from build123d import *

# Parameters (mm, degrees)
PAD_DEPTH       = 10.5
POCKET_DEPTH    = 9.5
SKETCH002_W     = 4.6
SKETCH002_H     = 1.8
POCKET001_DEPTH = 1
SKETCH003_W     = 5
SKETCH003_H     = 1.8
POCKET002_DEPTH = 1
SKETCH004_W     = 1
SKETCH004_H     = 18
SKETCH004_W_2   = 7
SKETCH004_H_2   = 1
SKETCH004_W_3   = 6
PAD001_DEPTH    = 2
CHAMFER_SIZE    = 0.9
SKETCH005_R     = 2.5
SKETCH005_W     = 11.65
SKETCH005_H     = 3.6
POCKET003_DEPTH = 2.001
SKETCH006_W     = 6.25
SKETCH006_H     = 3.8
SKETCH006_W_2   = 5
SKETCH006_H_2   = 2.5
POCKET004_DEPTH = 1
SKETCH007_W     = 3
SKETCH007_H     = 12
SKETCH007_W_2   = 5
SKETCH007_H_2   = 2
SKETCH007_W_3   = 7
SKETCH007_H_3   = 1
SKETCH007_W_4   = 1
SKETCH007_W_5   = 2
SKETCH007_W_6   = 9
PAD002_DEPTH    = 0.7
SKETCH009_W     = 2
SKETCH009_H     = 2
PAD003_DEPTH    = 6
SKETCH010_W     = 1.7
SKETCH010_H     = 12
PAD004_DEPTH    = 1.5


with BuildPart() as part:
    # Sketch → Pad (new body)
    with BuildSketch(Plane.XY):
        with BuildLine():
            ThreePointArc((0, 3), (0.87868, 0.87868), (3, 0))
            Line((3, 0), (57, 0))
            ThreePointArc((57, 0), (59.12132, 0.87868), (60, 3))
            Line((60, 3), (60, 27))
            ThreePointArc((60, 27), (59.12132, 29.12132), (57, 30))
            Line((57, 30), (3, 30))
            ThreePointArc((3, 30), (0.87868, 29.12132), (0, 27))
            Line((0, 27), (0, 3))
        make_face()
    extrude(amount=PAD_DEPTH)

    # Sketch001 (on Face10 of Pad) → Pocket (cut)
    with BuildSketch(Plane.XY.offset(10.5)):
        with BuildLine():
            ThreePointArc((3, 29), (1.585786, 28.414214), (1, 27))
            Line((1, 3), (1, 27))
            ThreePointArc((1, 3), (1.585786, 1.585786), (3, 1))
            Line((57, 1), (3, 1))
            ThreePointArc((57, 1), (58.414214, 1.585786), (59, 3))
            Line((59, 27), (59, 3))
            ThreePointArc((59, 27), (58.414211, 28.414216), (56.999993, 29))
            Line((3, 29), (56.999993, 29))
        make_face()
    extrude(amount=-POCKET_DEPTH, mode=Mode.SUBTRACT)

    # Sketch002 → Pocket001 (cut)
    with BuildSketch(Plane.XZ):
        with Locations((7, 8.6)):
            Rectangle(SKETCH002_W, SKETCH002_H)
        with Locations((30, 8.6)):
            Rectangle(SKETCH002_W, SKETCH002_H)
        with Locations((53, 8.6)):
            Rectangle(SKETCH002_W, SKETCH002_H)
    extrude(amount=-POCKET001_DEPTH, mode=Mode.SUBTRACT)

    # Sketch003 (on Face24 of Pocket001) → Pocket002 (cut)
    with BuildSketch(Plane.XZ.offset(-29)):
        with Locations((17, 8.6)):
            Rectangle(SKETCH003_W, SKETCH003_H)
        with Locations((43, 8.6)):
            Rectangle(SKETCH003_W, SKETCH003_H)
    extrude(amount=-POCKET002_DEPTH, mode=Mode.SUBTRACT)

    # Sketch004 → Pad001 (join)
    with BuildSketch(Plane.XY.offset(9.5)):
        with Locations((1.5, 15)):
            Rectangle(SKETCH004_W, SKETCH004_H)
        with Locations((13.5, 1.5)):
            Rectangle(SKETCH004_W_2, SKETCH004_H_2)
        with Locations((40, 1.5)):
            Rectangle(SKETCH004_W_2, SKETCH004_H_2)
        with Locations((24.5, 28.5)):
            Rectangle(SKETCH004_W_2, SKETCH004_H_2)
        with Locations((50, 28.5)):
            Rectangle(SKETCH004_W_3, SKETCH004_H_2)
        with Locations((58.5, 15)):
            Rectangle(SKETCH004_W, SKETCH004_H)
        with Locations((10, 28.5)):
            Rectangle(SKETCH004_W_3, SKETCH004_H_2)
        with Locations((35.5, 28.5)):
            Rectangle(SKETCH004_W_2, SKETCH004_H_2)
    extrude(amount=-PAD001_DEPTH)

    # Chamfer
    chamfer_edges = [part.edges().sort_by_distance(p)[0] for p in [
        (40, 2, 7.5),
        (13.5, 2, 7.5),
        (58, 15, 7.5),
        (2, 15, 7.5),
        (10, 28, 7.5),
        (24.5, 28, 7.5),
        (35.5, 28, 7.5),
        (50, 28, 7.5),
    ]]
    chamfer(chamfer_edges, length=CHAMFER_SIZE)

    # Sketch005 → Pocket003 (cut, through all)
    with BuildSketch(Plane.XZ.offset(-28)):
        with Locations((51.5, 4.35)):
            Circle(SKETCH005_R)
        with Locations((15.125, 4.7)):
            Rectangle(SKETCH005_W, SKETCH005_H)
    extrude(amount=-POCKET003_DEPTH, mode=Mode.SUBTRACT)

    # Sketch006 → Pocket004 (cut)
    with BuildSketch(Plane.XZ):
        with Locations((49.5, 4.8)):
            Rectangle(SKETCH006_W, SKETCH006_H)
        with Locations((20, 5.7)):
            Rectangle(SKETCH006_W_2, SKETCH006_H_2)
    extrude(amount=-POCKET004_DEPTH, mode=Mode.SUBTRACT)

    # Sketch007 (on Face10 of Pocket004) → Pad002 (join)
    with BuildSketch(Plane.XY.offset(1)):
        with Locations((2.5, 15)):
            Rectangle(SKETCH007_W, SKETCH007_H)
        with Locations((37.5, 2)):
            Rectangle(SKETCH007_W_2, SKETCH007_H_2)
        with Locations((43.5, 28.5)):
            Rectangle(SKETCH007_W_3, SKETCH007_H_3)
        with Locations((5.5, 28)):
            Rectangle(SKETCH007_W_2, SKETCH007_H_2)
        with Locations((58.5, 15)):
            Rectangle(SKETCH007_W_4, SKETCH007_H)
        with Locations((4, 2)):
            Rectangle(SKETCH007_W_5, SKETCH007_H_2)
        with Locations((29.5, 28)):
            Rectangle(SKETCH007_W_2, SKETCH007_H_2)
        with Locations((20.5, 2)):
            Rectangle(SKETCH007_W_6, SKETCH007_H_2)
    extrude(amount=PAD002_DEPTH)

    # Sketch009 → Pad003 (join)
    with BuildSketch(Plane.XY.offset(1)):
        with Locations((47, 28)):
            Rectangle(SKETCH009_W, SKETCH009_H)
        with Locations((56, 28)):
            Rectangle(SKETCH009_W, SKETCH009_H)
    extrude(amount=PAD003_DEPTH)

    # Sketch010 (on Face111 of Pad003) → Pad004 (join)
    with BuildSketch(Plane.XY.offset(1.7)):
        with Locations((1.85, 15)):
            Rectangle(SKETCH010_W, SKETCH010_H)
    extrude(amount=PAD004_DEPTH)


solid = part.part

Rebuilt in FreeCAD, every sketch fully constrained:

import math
import FreeCAD as App
import Part
import Sketcher
from FreeCAD import Vector
Q = App.Units.Quantity


def edges_at(feature, points):
    """Names of the edges that pass closest to the given points."""
    edges = feature.Shape.Edges
    near = lambda p: min(range(len(edges)), key=lambda i: edges[i].distToShape(Part.Vertex(*p))[0])
    return sorted({f"Edge{near(p) + 1}" for p in points})

doc = App.newDocument("Part")
body = doc.addObject("PartDesign::Body", "Body")

# Sketch on XY plane
sketch1 = body.newObject("Sketcher::SketchObject", "Sketch")
sketch1.AttachmentSupport = (doc.getObject("XY_Plane"), [""])
sketch1.MapMode = "FlatFace"
sketch1.addGeometry([
    Part.ArcOfCircle(Part.Circle(Vector(3.000001, 3.000001, 0), Vector(0, 0, 1), 3.000001), math.radians(-179.999978), math.radians(-90.000022)),  # 0
    Part.LineSegment(Vector(3, 0, 0), Vector(57, 0, 0)),  # 1
    Part.ArcOfCircle(Part.Circle(Vector(56.999999, 3.000001, 0), Vector(0, 0, 1), 3.000001), math.radians(-89.999978), math.radians(-0.000022)),  # 2
    Part.LineSegment(Vector(60, 3, 0), Vector(60, 27, 0)),  # 3
    Part.ArcOfCircle(Part.Circle(Vector(56.999999, 26.999999, 0), Vector(0, 0, 1), 3.000001), math.radians(0.000022), math.radians(89.999978)),  # 4
    Part.LineSegment(Vector(57, 30, 0), Vector(3, 30, 0)),  # 5
    Part.ArcOfCircle(Part.Circle(Vector(3.000001, 26.999999, 0), Vector(0, 0, 1), 3.000001), math.radians(90.000022), math.radians(179.999978)),  # 6
    Part.LineSegment(Vector(0, 27, 0), Vector(0, 3, 0)),  # 7
], False)
sketch1.addConstraint([
    Sketcher.Constraint("Tangent", 0, 2, 1, 1),
    Sketcher.Constraint("Tangent", 1, 2, 2, 1),
    Sketcher.Constraint("Tangent", 2, 2, 3, 1),
    Sketcher.Constraint("Tangent", 3, 2, 4, 1),
    Sketcher.Constraint("Tangent", 4, 2, 5, 1),
    Sketcher.Constraint("Tangent", 5, 2, 6, 1),
    Sketcher.Constraint("Tangent", 6, 2, 7, 1),
    Sketcher.Constraint("Tangent", 7, 2, 0, 1),
    Sketcher.Constraint("Horizontal", 1),
    Sketcher.Constraint("Vertical", 3),
    Sketcher.Constraint("Horizontal", 5),
    Sketcher.Constraint("Vertical", 7),
    Sketcher.Constraint("Equal", 0, 2),
    Sketcher.Constraint("Equal", 2, 4),
    Sketcher.Constraint("Equal", 4, 6),
    Sketcher.Constraint("PointOnObject", 0, 2, -1),
    Sketcher.Constraint("PointOnObject", 6, 2, -2),
    Sketcher.Constraint("Radius", 0, Q("3.000001 mm")),
    Sketcher.Constraint("DistanceX", 1, 1, 1, 2, Q("54 mm")),
    Sketcher.Constraint("DistanceY", 3, 1, 3, 2, Q("24 mm")),
])
pad1 = body.newObject("PartDesign::Pad", "Pad")
pad1.Profile = sketch1
pad1.Length = 10.5

# Sketch on XY plane
sketch2 = body.newObject("Sketcher::SketchObject", "Sketch001")
sketch2.AttachmentSupport = (doc.getObject("XY_Plane"), [""])
sketch2.MapMode = "FlatFace"
sketch2.AttachmentOffset = App.Placement(Vector(0, 0, 10.5), App.Rotation())
sketch2.addGeometry([
    Part.ArcOfCircle(Part.Circle(Vector(2.999999, 27.000001, 0), Vector(0, 0, 1), 1.999999), math.radians(89.999957), math.radians(180.000043)),  # 0
    Part.LineSegment(Vector(1, 27, 0), Vector(1, 3, 0)),  # 1
    Part.ArcOfCircle(Part.Circle(Vector(2.999999, 2.999999, 0), Vector(0, 0, 1), 1.999999), math.radians(179.999957), math.radians(270.000043)),  # 2
    Part.LineSegment(Vector(3, 1, 0), Vector(57, 1, 0)),  # 3
    Part.ArcOfCircle(Part.Circle(Vector(57.000001, 2.999999, 0), Vector(0, 0, 1), 1.999999), math.radians(-90.000043), math.radians(0.000043)),  # 4
    Part.LineSegment(Vector(59, 3, 0), Vector(59, 27, 0)),  # 5
    Part.ArcOfCircle(Part.Circle(Vector(57, 27, 0), Vector(0, 0, 1), 2), math.radians(0.000006), math.radians(90.000194)),  # 6
    Part.LineSegment(Vector(56.999993, 29, 0), Vector(3, 29, 0)),  # 7
], False)
sketch2.addConstraint([
    Sketcher.Constraint("Tangent", 0, 2, 1, 1),
    Sketcher.Constraint("Tangent", 1, 2, 2, 1),
    Sketcher.Constraint("Tangent", 2, 2, 3, 1),
    Sketcher.Constraint("Tangent", 3, 2, 4, 1),
    Sketcher.Constraint("Tangent", 4, 2, 5, 1),
    Sketcher.Constraint("Tangent", 5, 2, 6, 1),
    Sketcher.Constraint("Coincident", 6, 2, 7, 1),
    Sketcher.Constraint("Tangent", 7, 2, 0, 1),
    Sketcher.Constraint("Vertical", 1),
    Sketcher.Constraint("Horizontal", 3),
    Sketcher.Constraint("Vertical", 5),
    Sketcher.Constraint("Horizontal", 7),
    Sketcher.Constraint("Equal", 0, 2),
    Sketcher.Constraint("Equal", 2, 4),
    Sketcher.Constraint("Equal", 4, 6),
    Sketcher.Constraint("Radius", 0, Q("1.999999 mm")),
    Sketcher.Constraint("DistanceX", 3, 1, 3, 2, Q("54 mm")),
    Sketcher.Constraint("DistanceY", 1, 2, 1, 1, Q("24 mm")),
    Sketcher.Constraint("DistanceX", -1, 1, 0, 3, Q("2.999999 mm")),
    Sketcher.Constraint("DistanceY", -1, 1, 0, 3, Q("27.000001 mm")),
    Sketcher.Constraint("DistanceX", 7, 2, 7, 1, Q("53.999993 mm")),
])
pocket1 = body.newObject("PartDesign::Pocket", "Pocket")
pocket1.Profile = sketch2
pocket1.Length = 9.5

# Sketch on XZ plane
sketch3 = body.newObject("Sketcher::SketchObject", "Sketch002")
sketch3.AttachmentSupport = (doc.getObject("XZ_Plane"), [""])
sketch3.MapMode = "FlatFace"
sketch3.addGeometry([
    Part.LineSegment(Vector(4.7, 9.5, 0), Vector(4.7, 7.7, 0)),  # 0
    Part.LineSegment(Vector(4.7, 7.7, 0), Vector(9.3, 7.7, 0)),  # 1
    Part.LineSegment(Vector(9.3, 7.7, 0), Vector(9.3, 9.5, 0)),  # 2
    Part.LineSegment(Vector(9.3, 9.5, 0), Vector(4.7, 9.5, 0)),  # 3
    Part.LineSegment(Vector(27.7, 9.5, 0), Vector(27.7, 7.7, 0)),  # 4
    Part.LineSegment(Vector(27.7, 7.7, 0), Vector(32.3, 7.7, 0)),  # 5
    Part.LineSegment(Vector(32.3, 7.7, 0), Vector(32.3, 9.5, 0)),  # 6
    Part.LineSegment(Vector(32.3, 9.5, 0), Vector(27.7, 9.5, 0)),  # 7
    Part.LineSegment(Vector(50.7, 9.5, 0), Vector(50.7, 7.7, 0)),  # 8
    Part.LineSegment(Vector(50.7, 7.7, 0), Vector(55.3, 7.7, 0)),  # 9
    Part.LineSegment(Vector(55.3, 7.7, 0), Vector(55.3, 9.5, 0)),  # 10
    Part.LineSegment(Vector(55.3, 9.5, 0), Vector(50.7, 9.5, 0)),  # 11
], False)
sketch3.addConstraint([
    Sketcher.Constraint("Coincident", 0, 2, 1, 1),
    Sketcher.Constraint("Coincident", 1, 2, 2, 1),
    Sketcher.Constraint("Coincident", 2, 2, 3, 1),
    Sketcher.Constraint("Coincident", 3, 2, 0, 1),
    Sketcher.Constraint("Coincident", 4, 2, 5, 1),
    Sketcher.Constraint("Coincident", 5, 2, 6, 1),
    Sketcher.Constraint("Coincident", 6, 2, 7, 1),
    Sketcher.Constraint("Coincident", 7, 2, 4, 1),
    Sketcher.Constraint("Coincident", 8, 2, 9, 1),
    Sketcher.Constraint("Coincident", 9, 2, 10, 1),
    Sketcher.Constraint("Coincident", 10, 2, 11, 1),
    Sketcher.Constraint("Coincident", 11, 2, 8, 1),
    Sketcher.Constraint("Vertical", 0),
    Sketcher.Constraint("Horizontal", 1),
    Sketcher.Constraint("Vertical", 2),
    Sketcher.Constraint("Horizontal", 3),
    Sketcher.Constraint("Vertical", 4),
    Sketcher.Constraint("Horizontal", 5),
    Sketcher.Constraint("Vertical", 6),
    Sketcher.Constraint("Horizontal", 7),
    Sketcher.Constraint("Vertical", 8),
    Sketcher.Constraint("Horizontal", 9),
    Sketcher.Constraint("Vertical", 10),
    Sketcher.Constraint("Horizontal", 11),
    Sketcher.Constraint("Horizontal", 1, 2, 4, 2),
    Sketcher.Constraint("Horizontal", 3, 2, 6, 2),
    Sketcher.Constraint("Horizontal", 5, 2, 8, 2),
    Sketcher.Constraint("Horizontal", 7, 2, 10, 2),
    Sketcher.Constraint("Equal", 3, 5),
    Sketcher.Constraint("Equal", 7, 9),
    Sketcher.Constraint("DistanceX", 1, 1, 1, 2, Q("4.6 mm")),
    Sketcher.Constraint("DistanceY", 0, 2, 0, 1, Q("1.8 mm")),
    Sketcher.Constraint("DistanceX", 0, 2, 4, 2, Q("23 mm")),
    Sketcher.Constraint("DistanceX", 4, 2, 8, 2, Q("23 mm")),
    Sketcher.Constraint("DistanceX", -1, 1, 0, 2, Q("4.7 mm")),
    Sketcher.Constraint("DistanceY", -1, 1, 0, 2, Q("7.7 mm")),
])
pocket2 = body.newObject("PartDesign::Pocket", "Pocket001")
pocket2.Profile = sketch3
pocket2.Length = 1

# Sketch on XZ plane
sketch4 = body.newObject("Sketcher::SketchObject", "Sketch003")
sketch4.AttachmentSupport = (doc.getObject("XZ_Plane"), [""])
sketch4.MapMode = "FlatFace"
sketch4.AttachmentOffset = App.Placement(Vector(0, 0, -29), App.Rotation())
sketch4.addGeometry([
    Part.LineSegment(Vector(14.5, 9.5, 0), Vector(14.5, 7.7, 0)),  # 0
    Part.LineSegment(Vector(14.5, 7.7, 0), Vector(19.5, 7.7, 0)),  # 1
    Part.LineSegment(Vector(19.5, 7.7, 0), Vector(19.5, 9.5, 0)),  # 2
    Part.LineSegment(Vector(19.5, 9.5, 0), Vector(14.5, 9.5, 0)),  # 3
    Part.LineSegment(Vector(40.5, 9.5, 0), Vector(40.5, 7.7, 0)),  # 4
    Part.LineSegment(Vector(40.5, 7.7, 0), Vector(45.5, 7.7, 0)),  # 5
    Part.LineSegment(Vector(45.5, 7.7, 0), Vector(45.5, 9.5, 0)),  # 6
    Part.LineSegment(Vector(45.5, 9.5, 0), Vector(40.5, 9.5, 0)),  # 7
], False)
sketch4.addConstraint([
    Sketcher.Constraint("Coincident", 0, 2, 1, 1),
    Sketcher.Constraint("Coincident", 1, 2, 2, 1),
    Sketcher.Constraint("Coincident", 2, 2, 3, 1),
    Sketcher.Constraint("Coincident", 3, 2, 0, 1),
    Sketcher.Constraint("Coincident", 4, 2, 5, 1),
    Sketcher.Constraint("Coincident", 5, 2, 6, 1),
    Sketcher.Constraint("Coincident", 6, 2, 7, 1),
    Sketcher.Constraint("Coincident", 7, 2, 4, 1),
    Sketcher.Constraint("Vertical", 0),
    Sketcher.Constraint("Horizontal", 1),
    Sketcher.Constraint("Vertical", 2),
    Sketcher.Constraint("Horizontal", 3),
    Sketcher.Constraint("Vertical", 4),
    Sketcher.Constraint("Horizontal", 5),
    Sketcher.Constraint("Vertical", 6),
    Sketcher.Constraint("Horizontal", 7),
    Sketcher.Constraint("Horizontal", 1, 2, 4, 2),
    Sketcher.Constraint("Horizontal", 3, 2, 6, 2),
    Sketcher.Constraint("Equal", 3, 5),
    Sketcher.Constraint("DistanceX", 1, 1, 1, 2, Q("5 mm")),
    Sketcher.Constraint("DistanceY", 0, 2, 0, 1, Q("1.8 mm")),
    Sketcher.Constraint("DistanceX", 1, 2, 4, 2, Q("21 mm")),
    Sketcher.Constraint("DistanceX", -1, 1, 0, 2, Q("14.5 mm")),
    Sketcher.Constraint("DistanceY", -1, 1, 0, 2, Q("7.7 mm")),
])
pocket3 = body.newObject("PartDesign::Pocket", "Pocket002")
pocket3.Profile = sketch4
pocket3.Length = 1

# Sketch on XY plane
sketch5 = body.newObject("Sketcher::SketchObject", "Sketch004")
sketch5.AttachmentSupport = (doc.getObject("XY_Plane"), [""])
sketch5.MapMode = "FlatFace"
sketch5.AttachmentOffset = App.Placement(Vector(0, 0, 9.5), App.Rotation())
sketch5.addGeometry([
    Part.LineSegment(Vector(1, 24, 0), Vector(1, 6, 0)),  # 0
    Part.LineSegment(Vector(1, 6, 0), Vector(2, 6, 0)),  # 1
    Part.LineSegment(Vector(2, 6, 0), Vector(2, 24, 0)),  # 2
    Part.LineSegment(Vector(2, 24, 0), Vector(1, 24, 0)),  # 3
    Part.LineSegment(Vector(10, 2, 0), Vector(10, 1, 0)),  # 4
    Part.LineSegment(Vector(10, 1, 0), Vector(17, 1, 0)),  # 5
    Part.LineSegment(Vector(17, 1, 0), Vector(17, 2, 0)),  # 6
    Part.LineSegment(Vector(17, 2, 0), Vector(10, 2, 0)),  # 7
    Part.LineSegment(Vector(36.5, 2, 0), Vector(36.5, 1, 0)),  # 8
    Part.LineSegment(Vector(36.5, 1, 0), Vector(43.5, 1, 0)),  # 9
    Part.LineSegment(Vector(43.5, 1, 0), Vector(43.5, 2, 0)),  # 10
    Part.LineSegment(Vector(43.5, 2, 0), Vector(36.5, 2, 0)),  # 11
    Part.LineSegment(Vector(21, 29, 0), Vector(21, 28, 0)),  # 12
    Part.LineSegment(Vector(21, 28, 0), Vector(28, 28, 0)),  # 13
    Part.LineSegment(Vector(28, 28, 0), Vector(28, 29, 0)),  # 14
    Part.LineSegment(Vector(28, 29, 0), Vector(21, 29, 0)),  # 15
    Part.LineSegment(Vector(47, 29, 0), Vector(47, 28, 0)),  # 16
    Part.LineSegment(Vector(47, 28, 0), Vector(53, 28, 0)),  # 17
    Part.LineSegment(Vector(53, 28, 0), Vector(53, 29, 0)),  # 18
    Part.LineSegment(Vector(53, 29, 0), Vector(47, 29, 0)),  # 19
    Part.LineSegment(Vector(58, 24, 0), Vector(58, 6, 0)),  # 20
    Part.LineSegment(Vector(58, 6, 0), Vector(59, 6, 0)),  # 21
    Part.LineSegment(Vector(59, 6, 0), Vector(59, 24, 0)),  # 22
    Part.LineSegment(Vector(59, 24, 0), Vector(58, 24, 0)),  # 23
    Part.LineSegment(Vector(7, 29, 0), Vector(7, 28, 0)),  # 24
    Part.LineSegment(Vector(7, 28, 0), Vector(13, 28, 0)),  # 25
    Part.LineSegment(Vector(13, 28, 0), Vector(13, 29, 0)),  # 26
    Part.LineSegment(Vector(13, 29, 0), Vector(7, 29, 0)),  # 27
    Part.LineSegment(Vector(32, 29, 0), Vector(32, 28, 0)),  # 28
    Part.LineSegment(Vector(32, 28, 0), Vector(39, 28, 0)),  # 29
    Part.LineSegment(Vector(39, 28, 0), Vector(39, 29, 0)),  # 30
    Part.LineSegment(Vector(39, 29, 0), Vector(32, 29, 0)),  # 31
], False)
sketch5.addConstraint([
    Sketcher.Constraint("Coincident", 0, 2, 1, 1),
    Sketcher.Constraint("Coincident", 1, 2, 2, 1),
    Sketcher.Constraint("Coincident", 2, 2, 3, 1),
    Sketcher.Constraint("Coincident", 3, 2, 0, 1),
    Sketcher.Constraint("Coincident", 4, 2, 5, 1),
    Sketcher.Constraint("Coincident", 5, 2, 6, 1),
    Sketcher.Constraint("Coincident", 6, 2, 7, 1),
    Sketcher.Constraint("Coincident", 7, 2, 4, 1),
    Sketcher.Constraint("Coincident", 8, 2, 9, 1),
    Sketcher.Constraint("Coincident", 9, 2, 10, 1),
    Sketcher.Constraint("Coincident", 10, 2, 11, 1),
    Sketcher.Constraint("Coincident", 11, 2, 8, 1),
    Sketcher.Constraint("Coincident", 12, 2, 13, 1),
    Sketcher.Constraint("Coincident", 13, 2, 14, 1),
    Sketcher.Constraint("Coincident", 14, 2, 15, 1),
    Sketcher.Constraint("Coincident", 15, 2, 12, 1),
    Sketcher.Constraint("Coincident", 16, 2, 17, 1),
    Sketcher.Constraint("Coincident", 17, 2, 18, 1),
    Sketcher.Constraint("Coincident", 18, 2, 19, 1),
    Sketcher.Constraint("Coincident", 19, 2, 16, 1),
    Sketcher.Constraint("Coincident", 20, 2, 21, 1),
    Sketcher.Constraint("Coincident", 21, 2, 22, 1),
    Sketcher.Constraint("Coincident", 22, 2, 23, 1),
    Sketcher.Constraint("Coincident", 23, 2, 20, 1),
    Sketcher.Constraint("Coincident", 24, 2, 25, 1),
    Sketcher.Constraint("Coincident", 25, 2, 26, 1),
    Sketcher.Constraint("Coincident", 26, 2, 27, 1),
    Sketcher.Constraint("Coincident", 27, 2, 24, 1),
    Sketcher.Constraint("Coincident", 28, 2, 29, 1),
    Sketcher.Constraint("Coincident", 29, 2, 30, 1),
    Sketcher.Constraint("Coincident", 30, 2, 31, 1),
    Sketcher.Constraint("Coincident", 31, 2, 28, 1),
    Sketcher.Constraint("Vertical", 0),
    Sketcher.Constraint("Horizontal", 1),
    Sketcher.Constraint("Vertical", 2),
    Sketcher.Constraint("Horizontal", 3),
    Sketcher.Constraint("Vertical", 4),
    Sketcher.Constraint("Horizontal", 5),
    Sketcher.Constraint("Vertical", 6),
    Sketcher.Constraint("Horizontal", 7),
    Sketcher.Constraint("Vertical", 8),
    Sketcher.Constraint("Horizontal", 9),
    Sketcher.Constraint("Vertical", 10),
    Sketcher.Constraint("Horizontal", 11),
    Sketcher.Constraint("Vertical", 12),
    Sketcher.Constraint("Horizontal", 13),
    Sketcher.Constraint("Vertical", 14),
    Sketcher.Constraint("Horizontal", 15),
    Sketcher.Constraint("Vertical", 16),
    Sketcher.Constraint("Horizontal", 17),
    Sketcher.Constraint("Vertical", 18),
    Sketcher.Constraint("Horizontal", 19),
    Sketcher.Constraint("Vertical", 20),
    Sketcher.Constraint("Horizontal", 21),
    Sketcher.Constraint("Vertical", 22),
    Sketcher.Constraint("Horizontal", 23),
    Sketcher.Constraint("Vertical", 24),
    Sketcher.Constraint("Horizontal", 25),
    Sketcher.Constraint("Vertical", 26),
    Sketcher.Constraint("Horizontal", 27),
    Sketcher.Constraint("Vertical", 28),
    Sketcher.Constraint("Horizontal", 29),
    Sketcher.Constraint("Vertical", 30),
    Sketcher.Constraint("Horizontal", 31),
    Sketcher.Constraint("Horizontal", 5, 2, 8, 2),
    Sketcher.Constraint("Horizontal", 7, 2, 10, 2),
    Sketcher.Constraint("Horizontal", 13, 2, 16, 2),
    Sketcher.Constraint("Horizontal", 15, 2, 18, 2),
    Sketcher.Constraint("Horizontal", 1, 2, 20, 2),
    Sketcher.Constraint("Horizontal", 3, 2, 22, 2),
    Sketcher.Constraint("Horizontal", 17, 2, 24, 2),
    Sketcher.Constraint("Horizontal", 19, 2, 26, 2),
    Sketcher.Constraint("Horizontal", 25, 2, 28, 2),
    Sketcher.Constraint("Horizontal", 27, 2, 30, 2),
    Sketcher.Constraint("Equal", 7, 9),
    Sketcher.Constraint("Equal", 11, 13),
    Sketcher.Constraint("Equal", 3, 21),
    Sketcher.Constraint("Equal", 19, 25),
    Sketcher.Constraint("Equal", 15, 29),
    Sketcher.Constraint("Equal", 23, 4),
    Sketcher.Constraint("Equal", 10, 12),
    Sketcher.Constraint("DistanceX", 1, 1, 1, 2, Q("1 mm")),
    Sketcher.Constraint("DistanceX", 5, 1, 5, 2, Q("7 mm")),
    Sketcher.Constraint("DistanceX", 17, 1, 17, 2, Q("6 mm")),
    Sketcher.Constraint("DistanceY", 0, 2, 0, 1, Q("18 mm")),
    Sketcher.Constraint("DistanceX", -1, 1, 0, 2, Q("1 mm")),
    Sketcher.Constraint("DistanceY", -1, 1, 0, 2, Q("6 mm")),
    Sketcher.Constraint("DistanceX", -1, 1, 4, 2, Q("10 mm")),
    Sketcher.Constraint("DistanceY", -1, 1, 4, 2, Q("1 mm")),
    Sketcher.Constraint("DistanceX", -1, 1, 12, 2, Q("21 mm")),
    Sketcher.Constraint("DistanceY", -1, 1, 12, 2, Q("28 mm")),
    Sketcher.Constraint("DistanceX", -1, 1, 16, 2, Q("47 mm")),
    Sketcher.Constraint("DistanceX", -1, 1, 20, 2, Q("58 mm")),
    Sketcher.Constraint("DistanceX", -1, 1, 24, 2, Q("7 mm")),
    Sketcher.Constraint("DistanceX", -1, 1, 28, 2, Q("32 mm")),
    Sketcher.Constraint("DistanceX", -1, 1, 8, 2, Q("36.5 mm")),
])
pad2 = body.newObject("PartDesign::Pad", "Pad001")
pad2.Profile = sketch5
pad2.Length = 2
pad2.Reversed = True
doc.recompute()

chamfer = body.newObject("PartDesign::Chamfer", "Chamfer")
chamfer.Base = (pad2, edges_at(pad2, [
    (40, 2, 7.5),
    (13.5, 2, 7.5),
    (58, 15, 7.5),
    (2, 15, 7.5),
    (10, 28, 7.5),
    (24.5, 28, 7.5),
    (35.5, 28, 7.5),
    (50, 28, 7.5),
]))
chamfer.Size = 0.9

# Sketch on XZ plane
sketch6 = body.newObject("Sketcher::SketchObject", "Sketch005")
sketch6.AttachmentSupport = (doc.getObject("XZ_Plane"), [""])
sketch6.MapMode = "FlatFace"
sketch6.AttachmentOffset = App.Placement(Vector(0, 0, -28), App.Rotation())
sketch6.addGeometry([
    Part.Circle(Vector(51.5, 4.35, 0), Vector(0, 0, 1), 2.5),  # 0
    Part.LineSegment(Vector(9.3, 6.5, 0), Vector(9.3, 2.9, 0)),  # 1
    Part.LineSegment(Vector(9.3, 2.9, 0), Vector(20.95, 2.9, 0)),  # 2
    Part.LineSegment(Vector(20.95, 2.9, 0), Vector(20.95, 6.5, 0)),  # 3
    Part.LineSegment(Vector(20.95, 6.5, 0), Vector(9.3, 6.5, 0)),  # 4
], False)
sketch6.addConstraint([
    Sketcher.Constraint("Coincident", 1, 2, 2, 1),
    Sketcher.Constraint("Coincident", 2, 2, 3, 1),
    Sketcher.Constraint("Coincident", 3, 2, 4, 1),
    Sketcher.Constraint("Coincident", 4, 2, 1, 1),
    Sketcher.Constraint("Vertical", 1),
    Sketcher.Constraint("Horizontal", 2),
    Sketcher.Constraint("Vertical", 3),
    Sketcher.Constraint("Horizontal", 4),
    Sketcher.Constraint("Diameter", 0, Q("5 mm")),
    Sketcher.Constraint("DistanceY", 1, 2, 1, 1, Q("3.6 mm")),
    Sketcher.Constraint("DistanceX", 2, 1, 2, 2, Q("11.65 mm")),
    Sketcher.Constraint("DistanceX", -1, 1, 0, 3, Q("51.5 mm")),
    Sketcher.Constraint("DistanceX", -1, 1, 1, 2, Q("9.3 mm")),
    Sketcher.Constraint("DistanceY", -1, 1, 1, 2, Q("2.9 mm")),
    Sketcher.Constraint("DistanceY", -1, 1, 0, 3, Q("4.35 mm")),
])
pocket4 = body.newObject("PartDesign::Pocket", "Pocket003")
pocket4.Profile = sketch6
pocket4.Type = "ThroughAll"

# Sketch on XZ plane
sketch7 = body.newObject("Sketcher::SketchObject", "Sketch006")
sketch7.AttachmentSupport = (doc.getObject("XZ_Plane"), [""])
sketch7.MapMode = "FlatFace"
sketch7.addGeometry([
    Part.LineSegment(Vector(46.375, 6.7, 0), Vector(46.375, 2.9, 0)),  # 0
    Part.LineSegment(Vector(46.375, 2.9, 0), Vector(52.625, 2.9, 0)),  # 1
    Part.LineSegment(Vector(52.625, 2.9, 0), Vector(52.625, 6.7, 0)),  # 2
    Part.LineSegment(Vector(52.625, 6.7, 0), Vector(46.375, 6.7, 0)),  # 3
    Part.LineSegment(Vector(17.5, 6.95, 0), Vector(17.5, 4.45, 0)),  # 4
    Part.LineSegment(Vector(17.5, 4.45, 0), Vector(22.5, 4.45, 0)),  # 5
    Part.LineSegment(Vector(22.5, 4.45, 0), Vector(22.5, 6.95, 0)),  # 6
    Part.LineSegment(Vector(22.5, 6.95, 0), Vector(17.5, 6.95, 0)),  # 7
], False)
sketch7.addConstraint([
    Sketcher.Constraint("Coincident", 0, 2, 1, 1),
    Sketcher.Constraint("Coincident", 1, 2, 2, 1),
    Sketcher.Constraint("Coincident", 2, 2, 3, 1),
    Sketcher.Constraint("Coincident", 3, 2, 0, 1),
    Sketcher.Constraint("Coincident", 4, 2, 5, 1),
    Sketcher.Constraint("Coincident", 5, 2, 6, 1),
    Sketcher.Constraint("Coincident", 6, 2, 7, 1),
    Sketcher.Constraint("Coincident", 7, 2, 4, 1),
    Sketcher.Constraint("Vertical", 0),
    Sketcher.Constraint("Horizontal", 1),
    Sketcher.Constraint("Vertical", 2),
    Sketcher.Constraint("Horizontal", 3),
    Sketcher.Constraint("Vertical", 4),
    Sketcher.Constraint("Horizontal", 5),
    Sketcher.Constraint("Vertical", 6),
    Sketcher.Constraint("Horizontal", 7),
    Sketcher.Constraint("DistanceX", 5, 1, 5, 2, Q("5 mm")),
    Sketcher.Constraint("DistanceY", 0, 2, 0, 1, Q("3.8 mm")),
    Sketcher.Constraint("DistanceY", 4, 2, 4, 1, Q("2.5 mm")),
    Sketcher.Constraint("DistanceX", 1, 1, 1, 2, Q("6.25 mm")),
    Sketcher.Constraint("DistanceY", -1, 1, 0, 2, Q("2.9 mm")),
    Sketcher.Constraint("DistanceX", -1, 1, 4, 2, Q("17.5 mm")),
    Sketcher.Constraint("DistanceY", -1, 1, 4, 2, Q("4.45 mm")),
    Sketcher.Constraint("DistanceX", -1, 1, 0, 2, Q("46.375 mm")),
])
pocket5 = body.newObject("PartDesign::Pocket", "Pocket004")
pocket5.Profile = sketch7
pocket5.Length = 1

# Sketch on XY plane
sketch8 = body.newObject("Sketcher::SketchObject", "Sketch007")
sketch8.AttachmentSupport = (doc.getObject("XY_Plane"), [""])
sketch8.MapMode = "FlatFace"
sketch8.AttachmentOffset = App.Placement(Vector(0, 0, 1), App.Rotation())
sketch8.addGeometry([
    Part.LineSegment(Vector(1, 21, 0), Vector(1, 9, 0)),  # 0
    Part.LineSegment(Vector(1, 9, 0), Vector(4, 9, 0)),  # 1
    Part.LineSegment(Vector(4, 9, 0), Vector(4, 21, 0)),  # 2
    Part.LineSegment(Vector(4, 21, 0), Vector(1, 21, 0)),  # 3
    Part.LineSegment(Vector(35, 3, 0), Vector(35, 1, 0)),  # 4
    Part.LineSegment(Vector(35, 1, 0), Vector(40, 1, 0)),  # 5
    Part.LineSegment(Vector(40, 1, 0), Vector(40, 3, 0)),  # 6
    Part.LineSegment(Vector(40, 3, 0), Vector(35, 3, 0)),  # 7
    Part.LineSegment(Vector(40, 29, 0), Vector(40, 28, 0)),  # 8
    Part.LineSegment(Vector(40, 28, 0), Vector(47, 28, 0)),  # 9
    Part.LineSegment(Vector(47, 28, 0), Vector(47, 29, 0)),  # 10
    Part.LineSegment(Vector(47, 29, 0), Vector(40, 29, 0)),  # 11
    Part.LineSegment(Vector(3, 29, 0), Vector(3, 27, 0)),  # 12
    Part.LineSegment(Vector(3, 27, 0), Vector(8, 27, 0)),  # 13
    Part.LineSegment(Vector(8, 27, 0), Vector(8, 29, 0)),  # 14
    Part.LineSegment(Vector(8, 29, 0), Vector(3, 29, 0)),  # 15
    Part.LineSegment(Vector(58, 21, 0), Vector(58, 9, 0)),  # 16
    Part.LineSegment(Vector(58, 9, 0), Vector(59, 9, 0)),  # 17
    Part.LineSegment(Vector(59, 9, 0), Vector(59, 21, 0)),  # 18
    Part.LineSegment(Vector(59, 21, 0), Vector(58, 21, 0)),  # 19
    Part.LineSegment(Vector(3, 3, 0), Vector(3, 1, 0)),  # 20
    Part.LineSegment(Vector(3, 1, 0), Vector(5, 1, 0)),  # 21
    Part.LineSegment(Vector(5, 1, 0), Vector(5, 3, 0)),  # 22
    Part.LineSegment(Vector(5, 3, 0), Vector(3, 3, 0)),  # 23
    Part.LineSegment(Vector(27, 29, 0), Vector(27, 27, 0)),  # 24
    Part.LineSegment(Vector(27, 27, 0), Vector(32, 27, 0)),  # 25
    Part.LineSegment(Vector(32, 27, 0), Vector(32, 29, 0)),  # 26
    Part.LineSegment(Vector(32, 29, 0), Vector(27, 29, 0)),  # 27
    Part.LineSegment(Vector(16, 3, 0), Vector(16, 1, 0)),  # 28
    Part.LineSegment(Vector(16, 1, 0), Vector(25, 1, 0)),  # 29
    Part.LineSegment(Vector(25, 1, 0), Vector(25, 3, 0)),  # 30
    Part.LineSegment(Vector(25, 3, 0), Vector(16, 3, 0)),  # 31
], False)
sketch8.addConstraint([
    Sketcher.Constraint("Coincident", 0, 2, 1, 1),
    Sketcher.Constraint("Coincident", 1, 2, 2, 1),
    Sketcher.Constraint("Coincident", 2, 2, 3, 1),
    Sketcher.Constraint("Coincident", 3, 2, 0, 1),
    Sketcher.Constraint("Coincident", 4, 2, 5, 1),
    Sketcher.Constraint("Coincident", 5, 2, 6, 1),
    Sketcher.Constraint("Coincident", 6, 2, 7, 1),
    Sketcher.Constraint("Coincident", 7, 2, 4, 1),
    Sketcher.Constraint("Coincident", 8, 2, 9, 1),
    Sketcher.Constraint("Coincident", 9, 2, 10, 1),
    Sketcher.Constraint("Coincident", 10, 2, 11, 1),
    Sketcher.Constraint("Coincident", 11, 2, 8, 1),
    Sketcher.Constraint("Coincident", 12, 2, 13, 1),
    Sketcher.Constraint("Coincident", 13, 2, 14, 1),
    Sketcher.Constraint("Coincident", 14, 2, 15, 1),
    Sketcher.Constraint("Coincident", 15, 2, 12, 1),
    Sketcher.Constraint("Coincident", 16, 2, 17, 1),
    Sketcher.Constraint("Coincident", 17, 2, 18, 1),
    Sketcher.Constraint("Coincident", 18, 2, 19, 1),
    Sketcher.Constraint("Coincident", 19, 2, 16, 1),
    Sketcher.Constraint("Coincident", 20, 2, 21, 1),
    Sketcher.Constraint("Coincident", 21, 2, 22, 1),
    Sketcher.Constraint("Coincident", 22, 2, 23, 1),
    Sketcher.Constraint("Coincident", 23, 2, 20, 1),
    Sketcher.Constraint("Coincident", 24, 2, 25, 1),
    Sketcher.Constraint("Coincident", 25, 2, 26, 1),
    Sketcher.Constraint("Coincident", 26, 2, 27, 1),
    Sketcher.Constraint("Coincident", 27, 2, 24, 1),
    Sketcher.Constraint("Coincident", 28, 2, 29, 1),
    Sketcher.Constraint("Coincident", 29, 2, 30, 1),
    Sketcher.Constraint("Coincident", 30, 2, 31, 1),
    Sketcher.Constraint("Coincident", 31, 2, 28, 1),
    Sketcher.Constraint("Vertical", 0),
    Sketcher.Constraint("Horizontal", 1),
    Sketcher.Constraint("Vertical", 2),
    Sketcher.Constraint("Horizontal", 3),
    Sketcher.Constraint("Vertical", 4),
    Sketcher.Constraint("Horizontal", 5),
    Sketcher.Constraint("Vertical", 6),
    Sketcher.Constraint("Horizontal", 7),
    Sketcher.Constraint("Vertical", 8),
    Sketcher.Constraint("Horizontal", 9),
    Sketcher.Constraint("Vertical", 10),
    Sketcher.Constraint("Horizontal", 11),
    Sketcher.Constraint("Vertical", 12),
    Sketcher.Constraint("Horizontal", 13),
    Sketcher.Constraint("Vertical", 14),
    Sketcher.Constraint("Horizontal", 15),
    Sketcher.Constraint("Vertical", 16),
    Sketcher.Constraint("Horizontal", 17),
    Sketcher.Constraint("Vertical", 18),
    Sketcher.Constraint("Horizontal", 19),
    Sketcher.Constraint("Vertical", 20),
    Sketcher.Constraint("Horizontal", 21),
    Sketcher.Constraint("Vertical", 22),
    Sketcher.Constraint("Horizontal", 23),
    Sketcher.Constraint("Vertical", 24),
    Sketcher.Constraint("Horizontal", 25),
    Sketcher.Constraint("Vertical", 26),
    Sketcher.Constraint("Horizontal", 27),
    Sketcher.Constraint("Vertical", 28),
    Sketcher.Constraint("Horizontal", 29),
    Sketcher.Constraint("Vertical", 30),
    Sketcher.Constraint("Horizontal", 31),
    Sketcher.Constraint("Horizontal", 11, 2, 14, 2),
    Sketcher.Constraint("Horizontal", 1, 2, 16, 2),
    Sketcher.Constraint("Horizontal", 3, 2, 18, 2),
    Sketcher.Constraint("Horizontal", 5, 2, 20, 2),
    Sketcher.Constraint("Horizontal", 7, 2, 22, 2),
    Sketcher.Constraint("Horizontal", 13, 2, 24, 2),
    Sketcher.Constraint("Horizontal", 15, 2, 26, 2),
    Sketcher.Constraint("Horizontal", 21, 2, 28, 2),
    Sketcher.Constraint("Horizontal", 23, 2, 30, 2),
    Sketcher.Constraint("Vertical", 6, 2, 8, 2),
    Sketcher.Constraint("Vertical", 15, 2, 20, 2),
    Sketcher.Constraint("Equal", 7, 13),
    Sketcher.Constraint("Equal", 15, 25),
    Sketcher.Constraint("Equal", 23, 4),
    Sketcher.Constraint("Equal", 19, 8),
    Sketcher.Constraint("Equal", 6, 12),
    Sketcher.Constraint("DistanceX", 1, 1, 1, 2, Q("3 mm")),
    Sketcher.Constraint("DistanceX", 5, 1, 5, 2, Q("5 mm")),
    Sketcher.Constraint("DistanceX", 9, 1, 9, 2, Q("7 mm")),
    Sketcher.Constraint("DistanceX", 17, 1, 17, 2, Q("1 mm")),
    Sketcher.Constraint("DistanceX", 21, 1, 21, 2, Q("2 mm")),
    Sketcher.Constraint("DistanceX", 29, 1, 29, 2, Q("9 mm")),
    Sketcher.Constraint("DistanceY", 0, 2, 0, 1, Q("12 mm")),
    Sketcher.Constraint("DistanceX", -1, 1, 0, 2, Q("1 mm")),
    Sketcher.Constraint("DistanceY", -1, 1, 0, 2, Q("9 mm")),
    Sketcher.Constraint("DistanceX", -1, 1, 4, 2, Q("35 mm")),
    Sketcher.Constraint("DistanceY", -1, 1, 4, 2, Q("1 mm")),
    Sketcher.Constraint("DistanceY", -1, 1, 8, 2, Q("28 mm")),
    Sketcher.Constraint("DistanceX", -1, 1, 12, 2, Q("3 mm")),
    Sketcher.Constraint("DistanceX", -1, 1, 16, 2, Q("58 mm")),
    Sketcher.Constraint("DistanceX", -1, 1, 24, 2, Q("27 mm")),
    Sketcher.Constraint("DistanceX", -1, 1, 28, 2, Q("16 mm")),
])
pad3 = body.newObject("PartDesign::Pad", "Pad002")
pad3.Profile = sketch8
pad3.Length = 0.7

# Sketch on XY plane
sketch9 = body.newObject("Sketcher::SketchObject", "Sketch008")
sketch9.AttachmentSupport = (doc.getObject("XY_Plane"), [""])
sketch9.MapMode = "FlatFace"
sketch9.AttachmentOffset = App.Placement(Vector(0, 0, 1), App.Rotation())
sketch9.addGeometry([
    Part.LineSegment(Vector(46, 29, 0), Vector(46, 27, 0)),  # 0
    Part.LineSegment(Vector(46, 27, 0), Vector(48, 27, 0)),  # 1
    Part.LineSegment(Vector(48, 27, 0), Vector(48, 29, 0)),  # 2
    Part.LineSegment(Vector(48, 29, 0), Vector(46, 29, 0)),  # 3
    Part.LineSegment(Vector(55, 29, 0), Vector(55, 27, 0)),  # 4
    Part.LineSegment(Vector(55, 27, 0), Vector(57, 27, 0)),  # 5
    Part.LineSegment(Vector(57, 27, 0), Vector(57, 29, 0)),  # 6
    Part.LineSegment(Vector(57, 29, 0), Vector(55, 29, 0)),  # 7
], False)
sketch9.addConstraint([
    Sketcher.Constraint("Coincident", 0, 2, 1, 1),
    Sketcher.Constraint("Coincident", 1, 2, 2, 1),
    Sketcher.Constraint("Coincident", 2, 2, 3, 1),
    Sketcher.Constraint("Coincident", 3, 2, 0, 1),
    Sketcher.Constraint("Coincident", 4, 2, 5, 1),
    Sketcher.Constraint("Coincident", 5, 2, 6, 1),
    Sketcher.Constraint("Coincident", 6, 2, 7, 1),
    Sketcher.Constraint("Coincident", 7, 2, 4, 1),
    Sketcher.Constraint("Vertical", 0),
    Sketcher.Constraint("Horizontal", 1),
    Sketcher.Constraint("Vertical", 2),
    Sketcher.Constraint("Horizontal", 3),
    Sketcher.Constraint("Vertical", 4),
    Sketcher.Constraint("Horizontal", 5),
    Sketcher.Constraint("Vertical", 6),
    Sketcher.Constraint("Horizontal", 7),
    Sketcher.Constraint("Horizontal", 1, 2, 4, 2),
    Sketcher.Constraint("Horizontal", 3, 2, 6, 2),
    Sketcher.Constraint("Equal", 3, 5),
    Sketcher.Constraint("Equal", 7, 0),
    Sketcher.Constraint("DistanceX", 1, 1, 1, 2, Q("2 mm")),
    Sketcher.Constraint("DistanceX", -1, 1, 0, 2, Q("46 mm")),
    Sketcher.Constraint("DistanceY", -1, 1, 0, 2, Q("27 mm")),
    Sketcher.Constraint("DistanceX", -1, 1, 4, 2, Q("55 mm")),
])
pad4 = body.newObject("PartDesign::Pad", "Pad003")
pad4.Profile = sketch9
pad4.Length = 6

# Sketch on XY plane
sketch10 = body.newObject("Sketcher::SketchObject", "Sketch009")
sketch10.AttachmentSupport = (doc.getObject("XY_Plane"), [""])
sketch10.MapMode = "FlatFace"
sketch10.AttachmentOffset = App.Placement(Vector(0, 0, 1.7), App.Rotation())
sketch10.addGeometry([
    Part.LineSegment(Vector(1, 21, 0), Vector(1, 9, 0)),
    Part.LineSegment(Vector(1, 9, 0), Vector(2.7, 9, 0)),
    Part.LineSegment(Vector(2.7, 9, 0), Vector(2.7, 21, 0)),
    Part.LineSegment(Vector(2.7, 21, 0), Vector(1, 21, 0)),
], False)
sketch10.addConstraint([
    Sketcher.Constraint("Coincident", 0, 2, 1, 1),
    Sketcher.Constraint("Coincident", 1, 2, 2, 1),
    Sketcher.Constraint("Coincident", 2, 2, 3, 1),
    Sketcher.Constraint("Coincident", 3, 2, 0, 1),
    Sketcher.Constraint("Vertical", 0),
    Sketcher.Constraint("Horizontal", 1),
    Sketcher.Constraint("Vertical", 2),
    Sketcher.Constraint("Horizontal", 3),
    Sketcher.Constraint("DistanceY", 0, 2, 0, 1, Q("12 mm")),
    Sketcher.Constraint("DistanceX", 1, 1, 1, 2, Q("1.7 mm")),
    Sketcher.Constraint("DistanceX", -1, 1, 0, 2, Q("1 mm")),
    Sketcher.Constraint("DistanceY", -1, 1, 0, 2, Q("9 mm")),
])
pad5 = body.newObject("PartDesign::Pad", "Pad004")
pad5.Profile = sketch10
pad5.Length = 1.5

doc.recompute()
